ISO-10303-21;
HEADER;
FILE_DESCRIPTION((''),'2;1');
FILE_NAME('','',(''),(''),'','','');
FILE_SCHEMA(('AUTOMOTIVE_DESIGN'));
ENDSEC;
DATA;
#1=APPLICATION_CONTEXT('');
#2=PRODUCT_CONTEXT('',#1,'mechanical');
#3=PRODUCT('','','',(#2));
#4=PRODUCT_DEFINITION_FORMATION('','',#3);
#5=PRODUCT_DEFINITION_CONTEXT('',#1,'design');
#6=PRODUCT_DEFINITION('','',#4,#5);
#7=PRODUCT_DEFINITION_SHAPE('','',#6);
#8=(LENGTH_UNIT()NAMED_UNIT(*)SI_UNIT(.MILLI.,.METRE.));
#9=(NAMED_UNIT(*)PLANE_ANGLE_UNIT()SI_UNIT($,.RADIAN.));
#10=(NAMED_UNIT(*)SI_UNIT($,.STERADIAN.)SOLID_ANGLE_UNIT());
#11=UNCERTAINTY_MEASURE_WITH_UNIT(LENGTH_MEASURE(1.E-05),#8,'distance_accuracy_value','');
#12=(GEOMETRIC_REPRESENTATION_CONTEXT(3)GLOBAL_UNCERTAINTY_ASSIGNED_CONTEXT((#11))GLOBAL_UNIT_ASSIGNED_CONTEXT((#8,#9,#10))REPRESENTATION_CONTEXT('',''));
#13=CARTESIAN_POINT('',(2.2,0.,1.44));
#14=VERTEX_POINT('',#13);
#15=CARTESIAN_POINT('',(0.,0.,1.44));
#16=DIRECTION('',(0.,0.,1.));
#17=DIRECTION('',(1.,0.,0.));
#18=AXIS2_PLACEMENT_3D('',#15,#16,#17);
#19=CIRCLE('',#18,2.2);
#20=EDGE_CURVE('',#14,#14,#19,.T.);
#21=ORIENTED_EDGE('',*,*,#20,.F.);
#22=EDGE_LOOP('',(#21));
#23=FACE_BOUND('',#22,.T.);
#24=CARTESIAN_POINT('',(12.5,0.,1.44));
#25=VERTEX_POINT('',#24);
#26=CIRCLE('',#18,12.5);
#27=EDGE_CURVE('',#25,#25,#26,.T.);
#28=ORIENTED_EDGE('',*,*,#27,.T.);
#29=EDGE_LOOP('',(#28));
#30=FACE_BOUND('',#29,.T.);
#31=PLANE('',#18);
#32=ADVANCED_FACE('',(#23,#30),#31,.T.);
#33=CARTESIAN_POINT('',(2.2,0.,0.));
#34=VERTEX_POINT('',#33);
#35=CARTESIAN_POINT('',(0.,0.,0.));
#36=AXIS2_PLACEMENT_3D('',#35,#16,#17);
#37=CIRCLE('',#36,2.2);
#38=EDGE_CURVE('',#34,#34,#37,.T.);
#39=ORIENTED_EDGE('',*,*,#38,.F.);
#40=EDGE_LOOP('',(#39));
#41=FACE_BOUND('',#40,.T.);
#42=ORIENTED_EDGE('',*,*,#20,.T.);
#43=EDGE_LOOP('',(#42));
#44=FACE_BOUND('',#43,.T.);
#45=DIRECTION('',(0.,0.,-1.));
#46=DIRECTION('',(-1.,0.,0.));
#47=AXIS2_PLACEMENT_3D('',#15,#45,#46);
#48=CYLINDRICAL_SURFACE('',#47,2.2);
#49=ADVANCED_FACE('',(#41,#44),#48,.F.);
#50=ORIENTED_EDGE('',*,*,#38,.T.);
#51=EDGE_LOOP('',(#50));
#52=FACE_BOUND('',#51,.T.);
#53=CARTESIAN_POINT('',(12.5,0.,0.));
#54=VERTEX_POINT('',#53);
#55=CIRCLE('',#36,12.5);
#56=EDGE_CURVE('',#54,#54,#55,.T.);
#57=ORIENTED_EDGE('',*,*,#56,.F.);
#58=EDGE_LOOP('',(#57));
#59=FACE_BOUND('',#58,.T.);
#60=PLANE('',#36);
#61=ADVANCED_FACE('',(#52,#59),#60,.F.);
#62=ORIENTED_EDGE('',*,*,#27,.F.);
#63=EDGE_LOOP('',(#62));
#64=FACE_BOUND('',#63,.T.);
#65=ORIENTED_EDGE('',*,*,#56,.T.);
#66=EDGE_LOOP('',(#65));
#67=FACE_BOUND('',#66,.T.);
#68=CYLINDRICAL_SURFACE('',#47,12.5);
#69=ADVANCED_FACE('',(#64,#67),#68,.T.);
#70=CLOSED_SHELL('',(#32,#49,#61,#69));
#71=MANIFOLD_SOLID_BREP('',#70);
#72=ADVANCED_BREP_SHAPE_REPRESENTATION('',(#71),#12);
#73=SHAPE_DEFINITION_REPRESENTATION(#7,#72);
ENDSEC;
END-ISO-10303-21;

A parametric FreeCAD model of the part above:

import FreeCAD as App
import Part
import Sketcher
from FreeCAD import Vector
Q = App.Units.Quantity

doc = App.newDocument("Part")
body = doc.addObject("PartDesign::Body", "Body")

sketch1 = doc.addObject("Sketcher::SketchObject", "Sketch")
body.addObject(sketch1)
sketch1.AttachmentSupport = (doc.XY_Plane, [""])
sketch1.MapMode = "FlatFace"
sketch1.addGeometry([
    Part.Circle(Vector(0, 0, 0), Vector(0, 0, 1), 12.5),
    Part.Circle(Vector(0, 0, 0), Vector(0, 0, 1), 2.2),
], False)
sketch1.addConstraint([
    Sketcher.Constraint("Coincident", 0, 3, -1, 1),
    Sketcher.Constraint("Coincident", 1, 3, -1, 1),
    Sketcher.Constraint("Diameter", 0, Q("25 mm")),
    Sketcher.Constraint("Diameter", 1, Q("4.4 mm")),
])
pad1 = doc.addObject("PartDesign::Pad", "Pad")
body.addObject(pad1)
pad1.Profile = sketch1
pad1.Length = 1.44

doc.recompute()
